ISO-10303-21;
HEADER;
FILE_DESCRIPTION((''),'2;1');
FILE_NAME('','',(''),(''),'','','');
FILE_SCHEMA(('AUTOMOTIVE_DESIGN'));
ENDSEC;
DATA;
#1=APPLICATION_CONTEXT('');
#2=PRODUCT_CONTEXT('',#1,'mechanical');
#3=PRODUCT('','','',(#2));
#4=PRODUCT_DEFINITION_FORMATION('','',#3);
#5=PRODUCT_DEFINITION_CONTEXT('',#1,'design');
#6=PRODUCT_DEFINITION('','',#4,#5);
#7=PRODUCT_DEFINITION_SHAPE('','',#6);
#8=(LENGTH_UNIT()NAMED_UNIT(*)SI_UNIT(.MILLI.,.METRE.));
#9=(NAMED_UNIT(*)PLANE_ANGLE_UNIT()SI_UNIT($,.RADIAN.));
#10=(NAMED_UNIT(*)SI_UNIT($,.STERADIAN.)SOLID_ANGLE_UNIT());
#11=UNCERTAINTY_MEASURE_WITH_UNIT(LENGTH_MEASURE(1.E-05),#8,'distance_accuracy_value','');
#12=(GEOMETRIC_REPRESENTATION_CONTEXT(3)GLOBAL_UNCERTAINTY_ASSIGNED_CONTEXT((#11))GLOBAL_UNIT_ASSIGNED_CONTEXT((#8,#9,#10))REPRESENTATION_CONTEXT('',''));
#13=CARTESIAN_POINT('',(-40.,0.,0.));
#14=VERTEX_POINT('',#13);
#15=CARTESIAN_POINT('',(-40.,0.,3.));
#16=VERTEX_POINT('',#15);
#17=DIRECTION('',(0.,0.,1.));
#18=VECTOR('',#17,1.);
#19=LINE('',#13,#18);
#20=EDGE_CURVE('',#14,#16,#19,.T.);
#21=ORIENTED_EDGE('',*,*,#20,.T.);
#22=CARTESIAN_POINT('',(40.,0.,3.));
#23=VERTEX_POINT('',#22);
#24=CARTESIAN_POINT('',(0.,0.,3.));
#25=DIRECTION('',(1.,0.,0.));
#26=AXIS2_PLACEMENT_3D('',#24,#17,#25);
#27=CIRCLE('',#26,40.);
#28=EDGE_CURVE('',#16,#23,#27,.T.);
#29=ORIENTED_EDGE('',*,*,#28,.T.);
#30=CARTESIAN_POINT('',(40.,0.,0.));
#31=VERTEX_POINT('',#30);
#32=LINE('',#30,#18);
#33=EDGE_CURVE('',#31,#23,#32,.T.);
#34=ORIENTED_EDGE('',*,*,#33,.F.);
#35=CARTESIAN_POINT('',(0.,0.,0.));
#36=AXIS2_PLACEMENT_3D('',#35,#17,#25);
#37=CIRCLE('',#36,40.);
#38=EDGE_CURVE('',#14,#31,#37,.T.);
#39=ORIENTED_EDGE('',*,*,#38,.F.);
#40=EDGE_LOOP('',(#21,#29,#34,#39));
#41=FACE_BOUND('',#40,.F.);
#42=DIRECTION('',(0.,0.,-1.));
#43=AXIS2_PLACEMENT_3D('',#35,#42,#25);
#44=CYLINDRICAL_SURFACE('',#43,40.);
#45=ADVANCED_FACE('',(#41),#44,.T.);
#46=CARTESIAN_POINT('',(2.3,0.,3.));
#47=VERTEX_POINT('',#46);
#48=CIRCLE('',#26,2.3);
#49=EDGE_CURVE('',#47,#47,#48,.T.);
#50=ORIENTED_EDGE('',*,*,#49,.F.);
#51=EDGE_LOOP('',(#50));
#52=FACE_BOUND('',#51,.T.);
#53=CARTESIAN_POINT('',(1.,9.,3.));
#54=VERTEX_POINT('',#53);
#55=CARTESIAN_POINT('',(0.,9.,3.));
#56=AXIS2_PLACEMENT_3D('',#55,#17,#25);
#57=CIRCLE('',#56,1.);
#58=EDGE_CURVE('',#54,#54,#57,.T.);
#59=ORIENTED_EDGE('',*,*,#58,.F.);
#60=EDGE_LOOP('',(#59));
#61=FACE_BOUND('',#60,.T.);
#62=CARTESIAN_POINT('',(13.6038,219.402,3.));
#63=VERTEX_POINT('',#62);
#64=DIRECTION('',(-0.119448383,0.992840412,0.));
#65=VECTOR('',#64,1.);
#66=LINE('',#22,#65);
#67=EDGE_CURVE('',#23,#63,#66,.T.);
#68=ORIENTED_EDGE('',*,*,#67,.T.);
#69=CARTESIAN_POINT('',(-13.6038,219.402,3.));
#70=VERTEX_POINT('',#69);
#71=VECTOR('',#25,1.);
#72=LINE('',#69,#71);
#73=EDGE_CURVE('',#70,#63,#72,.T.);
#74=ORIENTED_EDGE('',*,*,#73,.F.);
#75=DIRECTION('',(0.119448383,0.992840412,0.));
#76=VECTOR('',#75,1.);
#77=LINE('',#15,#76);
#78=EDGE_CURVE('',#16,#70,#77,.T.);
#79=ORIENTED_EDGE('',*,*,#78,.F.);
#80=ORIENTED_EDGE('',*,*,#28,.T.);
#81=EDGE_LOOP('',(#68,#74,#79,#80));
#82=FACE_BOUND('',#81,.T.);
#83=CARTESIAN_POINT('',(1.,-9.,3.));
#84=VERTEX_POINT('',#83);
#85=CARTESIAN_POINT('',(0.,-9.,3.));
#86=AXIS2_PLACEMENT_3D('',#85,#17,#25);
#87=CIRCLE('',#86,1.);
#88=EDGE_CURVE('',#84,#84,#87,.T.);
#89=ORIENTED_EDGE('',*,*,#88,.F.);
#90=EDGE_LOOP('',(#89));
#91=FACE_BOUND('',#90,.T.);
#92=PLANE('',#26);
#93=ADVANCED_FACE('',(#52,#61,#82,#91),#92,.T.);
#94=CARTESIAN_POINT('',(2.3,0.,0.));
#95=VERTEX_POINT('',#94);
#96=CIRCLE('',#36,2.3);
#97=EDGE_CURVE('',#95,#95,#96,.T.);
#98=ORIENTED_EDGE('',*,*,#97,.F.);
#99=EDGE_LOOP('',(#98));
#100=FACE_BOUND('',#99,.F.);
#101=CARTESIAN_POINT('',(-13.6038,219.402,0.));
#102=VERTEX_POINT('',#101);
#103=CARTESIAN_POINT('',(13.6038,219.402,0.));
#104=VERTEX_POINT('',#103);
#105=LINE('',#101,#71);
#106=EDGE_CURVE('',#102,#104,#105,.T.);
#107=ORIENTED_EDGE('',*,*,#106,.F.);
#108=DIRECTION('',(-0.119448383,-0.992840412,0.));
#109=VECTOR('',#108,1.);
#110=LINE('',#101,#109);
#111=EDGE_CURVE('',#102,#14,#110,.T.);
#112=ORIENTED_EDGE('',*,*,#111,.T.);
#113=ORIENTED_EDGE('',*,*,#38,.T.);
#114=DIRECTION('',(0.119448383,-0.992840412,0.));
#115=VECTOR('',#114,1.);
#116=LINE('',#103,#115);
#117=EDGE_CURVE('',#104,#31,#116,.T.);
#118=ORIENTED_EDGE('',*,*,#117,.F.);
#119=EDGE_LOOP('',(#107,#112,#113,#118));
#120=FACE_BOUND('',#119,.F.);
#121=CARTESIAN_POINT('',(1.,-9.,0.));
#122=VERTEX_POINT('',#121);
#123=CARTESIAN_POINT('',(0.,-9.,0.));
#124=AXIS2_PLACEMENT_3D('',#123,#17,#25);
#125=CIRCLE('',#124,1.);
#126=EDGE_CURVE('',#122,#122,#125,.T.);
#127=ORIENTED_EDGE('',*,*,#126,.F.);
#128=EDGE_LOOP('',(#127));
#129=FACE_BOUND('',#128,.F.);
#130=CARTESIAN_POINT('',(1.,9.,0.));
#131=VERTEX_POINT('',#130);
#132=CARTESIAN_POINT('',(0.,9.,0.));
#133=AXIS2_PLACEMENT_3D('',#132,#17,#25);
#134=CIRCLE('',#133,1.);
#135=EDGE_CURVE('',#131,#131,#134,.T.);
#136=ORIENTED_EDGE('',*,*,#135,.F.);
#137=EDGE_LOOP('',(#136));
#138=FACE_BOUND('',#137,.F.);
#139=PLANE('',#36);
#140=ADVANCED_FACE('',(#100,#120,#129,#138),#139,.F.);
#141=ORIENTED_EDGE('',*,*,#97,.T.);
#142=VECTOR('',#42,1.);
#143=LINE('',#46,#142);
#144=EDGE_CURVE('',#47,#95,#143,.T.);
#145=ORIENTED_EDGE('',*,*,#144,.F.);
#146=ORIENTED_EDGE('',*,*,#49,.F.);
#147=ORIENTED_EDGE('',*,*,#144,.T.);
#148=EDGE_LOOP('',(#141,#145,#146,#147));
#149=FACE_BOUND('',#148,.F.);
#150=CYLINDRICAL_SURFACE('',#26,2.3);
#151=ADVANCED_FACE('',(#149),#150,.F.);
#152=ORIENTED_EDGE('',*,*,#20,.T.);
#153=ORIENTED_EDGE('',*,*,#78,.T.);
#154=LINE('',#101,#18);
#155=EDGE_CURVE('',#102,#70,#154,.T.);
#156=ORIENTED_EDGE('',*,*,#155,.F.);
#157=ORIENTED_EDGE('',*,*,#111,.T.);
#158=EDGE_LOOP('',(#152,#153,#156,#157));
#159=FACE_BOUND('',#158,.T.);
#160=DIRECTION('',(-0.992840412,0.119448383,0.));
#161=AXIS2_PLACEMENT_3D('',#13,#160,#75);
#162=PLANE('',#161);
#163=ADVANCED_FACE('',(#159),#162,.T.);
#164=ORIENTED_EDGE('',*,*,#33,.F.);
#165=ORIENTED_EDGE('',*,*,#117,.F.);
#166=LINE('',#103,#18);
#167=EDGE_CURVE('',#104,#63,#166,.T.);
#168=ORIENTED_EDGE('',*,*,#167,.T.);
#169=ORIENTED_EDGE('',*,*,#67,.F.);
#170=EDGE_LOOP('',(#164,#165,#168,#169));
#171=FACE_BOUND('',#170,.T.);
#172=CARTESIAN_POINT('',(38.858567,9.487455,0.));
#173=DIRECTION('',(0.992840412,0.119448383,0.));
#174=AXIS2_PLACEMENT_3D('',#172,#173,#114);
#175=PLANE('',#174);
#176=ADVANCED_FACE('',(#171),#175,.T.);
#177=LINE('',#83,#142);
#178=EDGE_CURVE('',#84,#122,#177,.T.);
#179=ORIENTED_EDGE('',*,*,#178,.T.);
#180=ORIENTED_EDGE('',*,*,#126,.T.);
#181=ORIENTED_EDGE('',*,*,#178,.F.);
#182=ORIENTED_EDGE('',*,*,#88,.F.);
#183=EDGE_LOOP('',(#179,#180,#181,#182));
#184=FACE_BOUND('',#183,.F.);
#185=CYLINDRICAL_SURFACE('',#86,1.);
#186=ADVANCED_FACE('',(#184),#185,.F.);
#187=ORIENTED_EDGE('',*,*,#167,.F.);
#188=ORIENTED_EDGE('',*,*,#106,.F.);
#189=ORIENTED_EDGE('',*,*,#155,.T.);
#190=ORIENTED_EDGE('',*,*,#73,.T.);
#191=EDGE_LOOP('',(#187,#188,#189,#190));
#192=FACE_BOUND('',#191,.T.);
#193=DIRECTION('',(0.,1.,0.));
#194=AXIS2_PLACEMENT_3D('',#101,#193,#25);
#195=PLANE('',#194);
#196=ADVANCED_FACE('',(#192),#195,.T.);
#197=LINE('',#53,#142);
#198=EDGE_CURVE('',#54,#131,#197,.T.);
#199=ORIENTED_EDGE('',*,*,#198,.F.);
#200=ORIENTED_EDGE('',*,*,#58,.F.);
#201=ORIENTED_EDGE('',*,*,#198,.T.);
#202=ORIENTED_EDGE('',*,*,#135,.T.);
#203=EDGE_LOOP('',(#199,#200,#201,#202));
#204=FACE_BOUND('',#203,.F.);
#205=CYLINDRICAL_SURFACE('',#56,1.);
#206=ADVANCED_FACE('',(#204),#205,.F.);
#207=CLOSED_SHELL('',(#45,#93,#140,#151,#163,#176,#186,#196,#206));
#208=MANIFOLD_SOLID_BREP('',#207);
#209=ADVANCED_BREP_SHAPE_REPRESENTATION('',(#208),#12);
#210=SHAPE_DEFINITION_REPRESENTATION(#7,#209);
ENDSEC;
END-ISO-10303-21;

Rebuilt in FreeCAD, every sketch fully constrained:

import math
import FreeCAD as App
import Part
import Sketcher
from FreeCAD import Vector
Q = App.Units.Quantity

doc = App.newDocument("Part")
body = doc.addObject("PartDesign::Body", "Body")

# Sketch on XY plane
sketch1 = body.newObject("Sketcher::SketchObject", "Sketch")
sketch1.AttachmentSupport = (doc.getObject("XY_Plane"), [""])
sketch1.MapMode = "FlatFace"
sketch1.addGeometry([
    Part.ArcOfCircle(Part.Circle(Vector(0, 0, 0), Vector(0, 0, 1), 40), math.radians(180), math.radians(360)),
    Part.LineSegment(Vector(40, 0, 0), Vector(14, 219, 0)),
    Part.LineSegment(Vector(14, 219, 0), Vector(-14, 219, 0)),
    Part.LineSegment(Vector(-14, 219, 0), Vector(-40, 0, 0)),
], False)
sketch1.addConstraint([
    Sketcher.Constraint("Coincident", 0, 2, 1, 1),
    Sketcher.Constraint("Coincident", 1, 2, 2, 1),
    Sketcher.Constraint("Coincident", 2, 2, 3, 1),
    Sketcher.Constraint("Coincident", 3, 2, 0, 1),
    Sketcher.Constraint("Horizontal", 2),
    Sketcher.Constraint("Coincident", 0, 3, -1, 1),
    Sketcher.Constraint("PointOnObject", 0, 2, -1),
    Sketcher.Constraint("PointOnObject", 3, 2, -1),
    Sketcher.Constraint("Equal", 1, 3),
    Sketcher.Constraint("Radius", 0, 40.0),
    Sketcher.Constraint("Angle", 1, Q("96.8603 deg")),
    Sketcher.Constraint("DistanceX", 2, 2, 2, 1, 27.2076),
])
pad1 = body.newObject("PartDesign::Pad", "Pad")
pad1.Profile = sketch1
pad1.Length = 3

# Sketch on XY plane
sketch2 = body.newObject("Sketcher::SketchObject", "Sketch001")
sketch2.AttachmentSupport = (doc.getObject("XY_Plane"), [""])
sketch2.MapMode = "FlatFace"
sketch2.AttachmentOffset = App.Placement(Vector(0, 0, 3), App.Rotation())
sketch2.addGeometry([
    Part.Circle(Vector(0, 0, 0), Vector(0, 0, 1), 2.3),
    Part.Circle(Vector(0, 9, 0), Vector(0, 0, 1), 1),
    Part.Circle(Vector(0, -9, 0), Vector(0, 0, 1), 1),
], False)
sketch2.addConstraint([
    Sketcher.Constraint("Coincident", 0, 3, -1, 1),
    Sketcher.Constraint("Equal", 1, 2),
    Sketcher.Constraint("Symmetric", 1, 3, 2, 3, -1, 1),
    Sketcher.Constraint("PointOnObject", 1, 3, -2),
    Sketcher.Constraint("Diameter", 1, 2.0),
    Sketcher.Constraint("Diameter", 0, 4.6),
    Sketcher.Constraint("DistanceY", -1, 1, 1, 3, 9.0),
])
pocket1 = body.newObject("PartDesign::Pocket", "Pocket")
pocket1.Profile = sketch2
pocket1.Length = 10

doc.recompute()
